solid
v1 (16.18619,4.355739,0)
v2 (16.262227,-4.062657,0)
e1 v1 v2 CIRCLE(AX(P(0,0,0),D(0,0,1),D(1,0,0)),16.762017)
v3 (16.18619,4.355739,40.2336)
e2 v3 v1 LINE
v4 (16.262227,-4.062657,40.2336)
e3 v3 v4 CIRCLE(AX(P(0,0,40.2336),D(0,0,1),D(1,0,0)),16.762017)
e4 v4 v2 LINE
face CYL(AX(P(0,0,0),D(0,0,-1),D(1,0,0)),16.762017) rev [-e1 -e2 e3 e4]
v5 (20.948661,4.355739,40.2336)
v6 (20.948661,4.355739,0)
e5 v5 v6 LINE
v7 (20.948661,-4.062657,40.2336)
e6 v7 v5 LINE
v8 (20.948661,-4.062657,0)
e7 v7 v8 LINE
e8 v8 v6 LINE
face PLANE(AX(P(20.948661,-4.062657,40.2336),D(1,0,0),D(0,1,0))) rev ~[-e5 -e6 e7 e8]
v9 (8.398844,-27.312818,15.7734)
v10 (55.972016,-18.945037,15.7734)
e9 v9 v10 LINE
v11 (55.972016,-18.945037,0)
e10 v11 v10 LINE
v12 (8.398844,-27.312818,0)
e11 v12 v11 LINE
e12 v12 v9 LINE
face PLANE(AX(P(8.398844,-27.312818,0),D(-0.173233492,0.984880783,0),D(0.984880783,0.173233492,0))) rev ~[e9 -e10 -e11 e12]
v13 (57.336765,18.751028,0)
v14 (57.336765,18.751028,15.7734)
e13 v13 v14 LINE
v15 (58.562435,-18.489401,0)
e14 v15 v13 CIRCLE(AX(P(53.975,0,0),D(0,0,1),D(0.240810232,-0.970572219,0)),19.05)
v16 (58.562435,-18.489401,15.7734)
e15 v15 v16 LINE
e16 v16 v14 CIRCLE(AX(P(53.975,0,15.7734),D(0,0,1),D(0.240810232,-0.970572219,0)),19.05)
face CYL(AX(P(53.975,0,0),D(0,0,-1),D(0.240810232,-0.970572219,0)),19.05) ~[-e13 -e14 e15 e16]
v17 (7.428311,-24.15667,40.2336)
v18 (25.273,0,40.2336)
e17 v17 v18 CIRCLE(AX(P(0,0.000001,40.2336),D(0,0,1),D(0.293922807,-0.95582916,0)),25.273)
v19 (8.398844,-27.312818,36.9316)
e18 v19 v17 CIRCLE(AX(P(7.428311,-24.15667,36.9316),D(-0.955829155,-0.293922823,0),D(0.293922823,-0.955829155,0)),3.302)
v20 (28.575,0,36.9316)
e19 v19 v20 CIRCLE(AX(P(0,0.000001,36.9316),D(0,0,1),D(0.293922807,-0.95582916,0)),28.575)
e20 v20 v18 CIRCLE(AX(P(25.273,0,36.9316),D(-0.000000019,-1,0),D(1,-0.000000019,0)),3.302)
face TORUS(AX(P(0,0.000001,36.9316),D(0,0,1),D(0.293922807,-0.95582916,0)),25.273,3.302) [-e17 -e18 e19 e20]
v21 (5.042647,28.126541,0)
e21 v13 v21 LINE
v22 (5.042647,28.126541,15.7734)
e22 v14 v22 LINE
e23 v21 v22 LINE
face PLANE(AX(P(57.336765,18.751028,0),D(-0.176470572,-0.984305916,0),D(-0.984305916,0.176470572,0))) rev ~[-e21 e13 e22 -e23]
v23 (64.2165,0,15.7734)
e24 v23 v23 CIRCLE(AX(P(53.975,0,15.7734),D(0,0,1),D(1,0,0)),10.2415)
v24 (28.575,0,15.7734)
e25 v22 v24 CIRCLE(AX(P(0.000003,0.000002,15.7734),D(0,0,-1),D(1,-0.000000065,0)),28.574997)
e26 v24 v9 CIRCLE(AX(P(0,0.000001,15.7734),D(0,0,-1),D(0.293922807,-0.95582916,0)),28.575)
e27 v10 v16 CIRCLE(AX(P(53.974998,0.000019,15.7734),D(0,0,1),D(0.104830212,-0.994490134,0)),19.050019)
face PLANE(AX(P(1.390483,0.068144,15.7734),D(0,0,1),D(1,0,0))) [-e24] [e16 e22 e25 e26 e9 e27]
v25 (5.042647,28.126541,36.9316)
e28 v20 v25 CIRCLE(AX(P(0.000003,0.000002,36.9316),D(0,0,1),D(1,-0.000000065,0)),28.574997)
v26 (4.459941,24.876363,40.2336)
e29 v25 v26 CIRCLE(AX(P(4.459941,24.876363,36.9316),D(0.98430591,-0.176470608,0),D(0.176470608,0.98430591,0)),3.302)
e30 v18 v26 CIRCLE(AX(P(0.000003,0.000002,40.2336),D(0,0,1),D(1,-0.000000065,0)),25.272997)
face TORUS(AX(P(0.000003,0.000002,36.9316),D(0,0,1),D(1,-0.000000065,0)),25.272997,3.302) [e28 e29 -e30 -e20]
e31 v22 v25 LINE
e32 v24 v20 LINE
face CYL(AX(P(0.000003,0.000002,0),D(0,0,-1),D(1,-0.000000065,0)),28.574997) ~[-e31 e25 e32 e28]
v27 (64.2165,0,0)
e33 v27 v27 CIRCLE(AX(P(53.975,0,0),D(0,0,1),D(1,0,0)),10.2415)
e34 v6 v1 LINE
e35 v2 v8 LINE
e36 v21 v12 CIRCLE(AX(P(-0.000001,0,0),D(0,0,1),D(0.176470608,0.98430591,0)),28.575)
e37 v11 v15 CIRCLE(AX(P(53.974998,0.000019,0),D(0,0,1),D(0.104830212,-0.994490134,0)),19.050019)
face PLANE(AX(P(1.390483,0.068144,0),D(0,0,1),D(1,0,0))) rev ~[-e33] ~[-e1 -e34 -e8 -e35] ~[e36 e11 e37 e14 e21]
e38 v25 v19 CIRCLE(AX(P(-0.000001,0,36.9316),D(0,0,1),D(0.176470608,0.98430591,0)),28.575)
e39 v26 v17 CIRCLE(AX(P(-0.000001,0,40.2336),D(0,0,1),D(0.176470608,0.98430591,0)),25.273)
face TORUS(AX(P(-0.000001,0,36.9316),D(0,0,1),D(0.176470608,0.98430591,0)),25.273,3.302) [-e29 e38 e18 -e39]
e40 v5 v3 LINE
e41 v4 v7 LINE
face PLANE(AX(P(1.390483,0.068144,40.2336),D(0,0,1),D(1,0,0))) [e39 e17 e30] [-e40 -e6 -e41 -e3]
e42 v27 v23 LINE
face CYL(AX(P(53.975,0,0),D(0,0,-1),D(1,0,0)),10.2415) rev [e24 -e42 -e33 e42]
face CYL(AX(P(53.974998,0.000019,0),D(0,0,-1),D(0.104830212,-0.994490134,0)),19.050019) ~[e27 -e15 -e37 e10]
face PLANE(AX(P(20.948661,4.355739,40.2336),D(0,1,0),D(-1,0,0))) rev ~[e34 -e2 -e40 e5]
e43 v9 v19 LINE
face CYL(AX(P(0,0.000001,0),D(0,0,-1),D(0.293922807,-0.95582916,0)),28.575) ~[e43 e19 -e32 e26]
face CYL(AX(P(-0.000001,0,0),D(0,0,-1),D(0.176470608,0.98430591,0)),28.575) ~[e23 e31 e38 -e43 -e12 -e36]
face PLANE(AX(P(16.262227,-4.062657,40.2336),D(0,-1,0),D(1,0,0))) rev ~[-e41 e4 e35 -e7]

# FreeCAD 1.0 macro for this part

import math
import FreeCAD as App
import Part
import Sketcher
from FreeCAD import Vector
Q = App.Units.Quantity


def edges_at(feature, points):
    """Names of the edges that pass closest to the given points."""
    edges = feature.Shape.Edges
    near = lambda p: min(range(len(edges)), key=lambda i: edges[i].distToShape(Part.Vertex(*p))[0])
    return sorted({f"Edge{near(p) + 1}" for p in points})

doc = App.newDocument("Part")
params = doc.addObject("Spreadsheet::Sheet", "Params")
for row, (alias, value) in enumerate([
    ("sketch1_radius", "0.75 in"),
    ("sketch1_radius2", "1.125 in"),
    ("pad1_length", "0.621 in"),
    ("sketch2_radius", "1.125 in"),
    ("pad2_length", "1.584 in"),
    ("pocket1_length", "2.28 in"),
    ("fillet_radius", "0.13 in"),
], start=1):
    params.set(f"A{row}", alias)
    params.set(f"B{row}", "=" + value)
    params.setAlias(f"B{row}", alias)

body = doc.addObject("PartDesign::Body", "Body")

# Sketch on XY plane
sketch1 = doc.addObject("Sketcher::SketchObject", "Sketch")
body.addObject(sketch1)
sketch1.AttachmentSupport = (doc.XY_Plane, [""])
sketch1.MapMode = "FlatFace"
sketch1.addGeometry([
    Part.ArcOfCircle(Part.Circle(Vector(-0.000001, 0, 0), Vector(0, 0, 1), 28.575), math.radians(79.83575), math.radians(287.092956)),  # 0
    Part.LineSegment(Vector(8.398844, -27.312818, 0), Vector(55.972016, -18.945037, 0)),  # 1
    Part.ArcOfCircle(Part.Circle(Vector(53.974998, 0.000019, 0), Vector(0, 0, 1), 19.050019), math.radians(-83.982616), math.radians(-76.065643)),  # 2
    Part.ArcOfCircle(Part.Circle(Vector(53.975, 0, 0), Vector(0, 0, 1), 19.05), math.radians(-76.065634), math.radians(79.835751)),  # 3
    Part.LineSegment(Vector(57.336765, 18.751028, 0), Vector(5.042647, 28.126541, 0)),  # 4
    Part.Circle(Vector(0, 0, 0), Vector(0, 0, 1), 16.762017),  # 5
    Part.Circle(Vector(53.975, 0, 0), Vector(0, 0, 1), 10.2415),  # 6
], False)
sketch1.addConstraint([
    Sketcher.Constraint("Coincident", 0, 2, 1, 1),
    Sketcher.Constraint("Coincident", 1, 2, 2, 1),
    Sketcher.Constraint("Tangent", 2, 2, 3, 1),
    Sketcher.Constraint("Tangent", 3, 2, 4, 1),
    Sketcher.Constraint("Tangent", 4, 2, 0, 1),
    Sketcher.Constraint("Coincident", 0, 3, -1, 1),
    Sketcher.Constraint("Coincident", 5, 3, -1, 1),
    Sketcher.Constraint("Coincident", 6, 3, 3, 3),
    Sketcher.Constraint("PointOnObject", 3, 3, -1),
    Sketcher.Constraint("Vertical", 2, 3, 3, 3),
    Sketcher.Constraint("Radius", 3, Q("0.75 in")),
    Sketcher.Constraint("Radius", 0, Q("1.125 in")),
    Sketcher.Constraint("Diameter", 6, Q("20.483 mm")),
    Sketcher.Constraint("DistanceX", -1, 1, 2, 3, Q("2.1249999 in")),
    Sketcher.Constraint("Diameter", 5, Q("33.524034 mm")),
    Sketcher.Constraint("DistanceY", 2, 2, -1, 1, Q("18.489401 mm")),
    Sketcher.Constraint("DistanceY", 0, 2, 3, 3, Q("27.312818 mm")),
    Sketcher.Constraint("DistanceY", 0, 2, 1, 2, Q("8.367781 mm")),
])
sketch1.setExpression("Constraints[10]", "Params.sketch1_radius")
sketch1.setExpression("Constraints[11]", "Params.sketch1_radius2")
pad1 = doc.addObject("PartDesign::Pad", "Pad")
body.addObject(pad1)
pad1.Profile = sketch1
pad1.setExpression("Length", "Params.pad1_length")

# Sketch on XY plane
sketch2 = doc.addObject("Sketcher::SketchObject", "Sketch001")
body.addObject(sketch2)
sketch2.AttachmentSupport = (doc.XY_Plane, [""])
sketch2.MapMode = "FlatFace"
sketch2.addGeometry([
    Part.ArcOfCircle(Part.Circle(Vector(0, 0.000001, 0), Vector(0, 0, 1), 28.575), math.radians(-72.907045), math.radians(-0.000001)),
    Part.ArcOfCircle(Part.Circle(Vector(0.000003, 0.000002, 0), Vector(0, 0, 1), 28.574997), math.radians(-0.000004), math.radians(79.835756)),
    Part.ArcOfCircle(Part.Circle(Vector(-0.000001, 0, 0), Vector(0, 0, 1), 28.575), math.radians(79.83575), math.radians(287.092956)),
    Part.Circle(Vector(0, 0, 0), Vector(0, 0, 1), 16.762017),
], False)
sketch2.addConstraint([
    Sketcher.Constraint("Tangent", 0, 2, 1, 1),
    Sketcher.Constraint("Tangent", 1, 2, 2, 1),
    Sketcher.Constraint("Tangent", 2, 2, 0, 1),
    Sketcher.Constraint("Coincident", 0, 3, -1, 1),
    Sketcher.Constraint("Coincident", 3, 3, -1, 1),
    Sketcher.Constraint("PointOnObject", 0, 2, -1),
    Sketcher.Constraint("Radius", 0, Q("1.125 in")),
    Sketcher.Constraint("Diameter", 3, Q("33.524034 mm")),
    Sketcher.Constraint("DistanceY", -1, 1, 1, 2, Q("28.126541 mm")),
    Sketcher.Constraint("DistanceY", 2, 2, 0, 3, Q("27.312819 mm")),
])
sketch2.setExpression("Constraints[6]", "Params.sketch2_radius")
pad2 = doc.addObject("PartDesign::Pad", "Pad001")
body.addObject(pad2)
pad2.Profile = sketch2
pad2.setExpression("Length", "Params.pad2_length")

# Sketch on XY plane
sketch3 = doc.addObject("Sketcher::SketchObject", "Sketch002")
body.addObject(sketch3)
sketch3.AttachmentSupport = (doc.XY_Plane, [""])
sketch3.MapMode = "FlatFace"
sketch3.AttachmentOffset = App.Placement(Vector(0, 0, 1.584 * 25.4), App.Rotation())
sketch3.addGeometry([
    Part.LineSegment(Vector(20.948661, 4.355739, 0), Vector(16.18619, 4.355739, 0)),  # 0
    Part.ArcOfCircle(Part.Circle(Vector(0.000036, 0.000004, 0), Vector(0, 0, 1), 16.761981), math.radians(-0.000014), math.radians(15.061636)),  # 1
    Part.ArcOfCircle(Part.Circle(Vector(-0.000033, 0.000005, 0), Vector(0, 0, 1), 16.76205), math.radians(-14.026616), math.radians(-0.000016)),  # 2
    Part.LineSegment(Vector(16.262227, -4.062657, 0), Vector(20.948661, -4.062657, 0)),  # 3
    Part.LineSegment(Vector(20.948661, -4.062657, 0), Vector(20.948661, 4.355739, 0)),  # 4
], False)
sketch3.addConstraint([
    Sketcher.Constraint("Coincident", 0, 2, 1, 2),
    Sketcher.Constraint("Tangent", 1, 1, 2, 2),
    Sketcher.Constraint("Coincident", 2, 1, 3, 1),
    Sketcher.Constraint("Coincident", 3, 2, 4, 1),
    Sketcher.Constraint("Coincident", 4, 2, 0, 1),
    Sketcher.Constraint("Horizontal", 0),
    Sketcher.Constraint("Horizontal", 3),
    Sketcher.Constraint("Vertical", 4),
    Sketcher.Constraint("Symmetric", 1, 3, 2, 3, -1, 1),
    Sketcher.Constraint("PointOnObject", 1, 1, -1),
    Sketcher.Constraint("Radius", 1, Q("16.761981 mm")),
    Sketcher.Constraint("Radius", 2, Q("16.76205 mm")),
    Sketcher.Constraint("DistanceX", 0, 2, 0, 1, Q("4.762471 mm")),
    Sketcher.Constraint("DistanceX", 3, 1, 3, 2, Q("4.686434 mm")),
    Sketcher.Constraint("DistanceY", 4, 1, 4, 2, Q("8.418396 mm")),
])
pocket1 = doc.addObject("PartDesign::Pocket", "Pocket")
body.addObject(pocket1)
pocket1.Profile = sketch3
pocket1.setExpression("Length", "Params.pocket1_length")
doc.recompute()

fillet = doc.addObject("PartDesign::Fillet", "Fillet")
body.addObject(fillet)
fillet.Base = (pocket1, edges_at(pocket1, [(-28.523, -1.727, 40.234)]))
fillet.setExpression("Radius", "Params.fillet_radius")

doc.recompute()
